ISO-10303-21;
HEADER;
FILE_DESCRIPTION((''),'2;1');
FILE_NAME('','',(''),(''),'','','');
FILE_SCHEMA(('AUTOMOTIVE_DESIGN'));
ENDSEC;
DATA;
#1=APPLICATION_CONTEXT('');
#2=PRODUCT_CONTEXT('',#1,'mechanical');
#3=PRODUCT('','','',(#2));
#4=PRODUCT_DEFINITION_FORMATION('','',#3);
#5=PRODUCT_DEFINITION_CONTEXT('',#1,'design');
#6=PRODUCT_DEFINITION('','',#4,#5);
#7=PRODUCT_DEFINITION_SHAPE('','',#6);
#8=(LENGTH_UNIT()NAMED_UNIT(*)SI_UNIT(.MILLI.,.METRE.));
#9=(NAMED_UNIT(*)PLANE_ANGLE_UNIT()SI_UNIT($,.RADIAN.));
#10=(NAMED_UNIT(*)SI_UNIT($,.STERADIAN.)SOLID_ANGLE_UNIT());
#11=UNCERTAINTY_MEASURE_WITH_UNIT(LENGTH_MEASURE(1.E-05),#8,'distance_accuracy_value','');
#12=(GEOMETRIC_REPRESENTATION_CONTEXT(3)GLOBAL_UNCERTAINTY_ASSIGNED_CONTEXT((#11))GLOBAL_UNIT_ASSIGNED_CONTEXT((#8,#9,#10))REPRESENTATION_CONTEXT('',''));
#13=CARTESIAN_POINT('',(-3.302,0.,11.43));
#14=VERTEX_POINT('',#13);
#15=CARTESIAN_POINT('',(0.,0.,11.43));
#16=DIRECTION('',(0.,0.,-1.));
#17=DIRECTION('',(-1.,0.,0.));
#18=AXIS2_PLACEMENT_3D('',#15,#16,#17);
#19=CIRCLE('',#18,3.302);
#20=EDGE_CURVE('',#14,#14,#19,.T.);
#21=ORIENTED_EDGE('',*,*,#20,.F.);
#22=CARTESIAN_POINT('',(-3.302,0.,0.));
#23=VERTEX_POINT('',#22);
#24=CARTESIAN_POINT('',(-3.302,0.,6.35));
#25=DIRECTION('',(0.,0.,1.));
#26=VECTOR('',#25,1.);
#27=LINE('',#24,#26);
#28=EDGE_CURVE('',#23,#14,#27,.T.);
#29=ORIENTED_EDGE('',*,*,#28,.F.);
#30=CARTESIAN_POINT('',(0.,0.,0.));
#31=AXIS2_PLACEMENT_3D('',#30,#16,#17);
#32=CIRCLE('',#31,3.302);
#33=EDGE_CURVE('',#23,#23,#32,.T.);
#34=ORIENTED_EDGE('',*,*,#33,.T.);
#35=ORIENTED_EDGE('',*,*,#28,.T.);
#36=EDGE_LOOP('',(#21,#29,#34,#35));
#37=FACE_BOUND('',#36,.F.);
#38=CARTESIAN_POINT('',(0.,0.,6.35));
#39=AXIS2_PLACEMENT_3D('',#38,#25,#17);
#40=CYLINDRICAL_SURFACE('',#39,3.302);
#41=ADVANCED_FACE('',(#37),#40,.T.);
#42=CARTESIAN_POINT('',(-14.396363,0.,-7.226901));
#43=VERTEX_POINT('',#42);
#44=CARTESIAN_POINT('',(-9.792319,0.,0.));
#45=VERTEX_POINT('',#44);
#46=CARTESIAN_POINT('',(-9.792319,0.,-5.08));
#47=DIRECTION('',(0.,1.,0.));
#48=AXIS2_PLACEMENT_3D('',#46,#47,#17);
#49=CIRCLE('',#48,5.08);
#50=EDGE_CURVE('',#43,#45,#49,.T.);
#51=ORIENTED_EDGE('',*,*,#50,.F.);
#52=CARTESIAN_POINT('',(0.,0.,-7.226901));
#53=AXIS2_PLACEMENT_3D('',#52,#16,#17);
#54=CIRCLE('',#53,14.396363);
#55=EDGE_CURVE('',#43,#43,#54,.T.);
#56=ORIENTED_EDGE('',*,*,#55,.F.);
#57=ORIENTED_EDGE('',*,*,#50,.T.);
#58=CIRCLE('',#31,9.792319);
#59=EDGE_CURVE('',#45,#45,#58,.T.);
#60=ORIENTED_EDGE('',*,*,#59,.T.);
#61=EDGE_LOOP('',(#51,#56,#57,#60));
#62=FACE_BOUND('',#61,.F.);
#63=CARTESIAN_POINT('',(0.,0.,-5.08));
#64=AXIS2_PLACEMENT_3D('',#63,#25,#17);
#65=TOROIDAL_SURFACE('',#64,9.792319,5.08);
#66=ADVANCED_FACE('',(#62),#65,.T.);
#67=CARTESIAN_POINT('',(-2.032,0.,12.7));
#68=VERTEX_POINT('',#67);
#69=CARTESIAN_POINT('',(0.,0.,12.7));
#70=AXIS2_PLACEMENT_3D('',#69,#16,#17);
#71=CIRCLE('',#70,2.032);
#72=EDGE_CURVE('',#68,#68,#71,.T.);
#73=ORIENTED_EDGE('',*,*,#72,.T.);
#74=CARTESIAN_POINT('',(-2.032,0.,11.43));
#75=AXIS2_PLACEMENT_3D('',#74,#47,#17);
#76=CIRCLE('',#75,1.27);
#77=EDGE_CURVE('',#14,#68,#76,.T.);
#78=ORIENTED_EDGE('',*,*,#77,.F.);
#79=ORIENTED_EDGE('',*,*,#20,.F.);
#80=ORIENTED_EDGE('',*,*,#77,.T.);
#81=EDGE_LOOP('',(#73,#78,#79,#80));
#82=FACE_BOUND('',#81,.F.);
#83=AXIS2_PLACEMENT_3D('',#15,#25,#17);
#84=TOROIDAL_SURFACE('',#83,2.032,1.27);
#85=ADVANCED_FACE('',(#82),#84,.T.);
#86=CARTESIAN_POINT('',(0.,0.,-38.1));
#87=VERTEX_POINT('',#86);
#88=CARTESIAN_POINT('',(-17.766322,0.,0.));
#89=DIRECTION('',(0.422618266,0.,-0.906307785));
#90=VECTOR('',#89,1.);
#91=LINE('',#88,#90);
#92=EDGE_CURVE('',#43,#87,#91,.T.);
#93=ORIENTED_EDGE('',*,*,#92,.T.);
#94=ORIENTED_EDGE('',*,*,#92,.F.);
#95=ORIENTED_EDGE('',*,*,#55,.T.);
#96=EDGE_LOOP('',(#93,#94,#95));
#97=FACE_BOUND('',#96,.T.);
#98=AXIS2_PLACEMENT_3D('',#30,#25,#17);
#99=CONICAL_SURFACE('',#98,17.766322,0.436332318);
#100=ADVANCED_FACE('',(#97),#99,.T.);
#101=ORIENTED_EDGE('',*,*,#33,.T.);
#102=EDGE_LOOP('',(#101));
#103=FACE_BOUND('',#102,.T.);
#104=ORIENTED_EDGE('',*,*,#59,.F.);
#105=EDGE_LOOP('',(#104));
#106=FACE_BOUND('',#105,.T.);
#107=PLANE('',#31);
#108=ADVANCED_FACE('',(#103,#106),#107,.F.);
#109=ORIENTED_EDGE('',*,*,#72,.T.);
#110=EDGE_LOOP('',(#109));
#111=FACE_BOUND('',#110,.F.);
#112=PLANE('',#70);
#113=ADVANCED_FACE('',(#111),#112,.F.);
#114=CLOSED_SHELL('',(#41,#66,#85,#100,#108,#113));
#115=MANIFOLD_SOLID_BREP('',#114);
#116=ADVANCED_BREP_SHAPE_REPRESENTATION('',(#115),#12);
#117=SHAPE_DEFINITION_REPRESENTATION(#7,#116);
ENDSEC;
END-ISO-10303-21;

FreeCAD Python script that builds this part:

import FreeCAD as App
import Part
import Sketcher
from FreeCAD import Vector
Q = App.Units.Quantity


def edges_at(feature, points):
    """Names of the edges that pass closest to the given points."""
    edges = feature.Shape.Edges
    near = lambda p: min(range(len(edges)), key=lambda i: edges[i].distToShape(Part.Vertex(*p))[0])
    return sorted({f"Edge{near(p) + 1}" for p in points})

doc = App.newDocument("Part")
body = doc.addObject("PartDesign::Body", "Body")

sketch1 = body.newObject("Sketcher::SketchObject", "Sketch")
sketch1.AttachmentSupport = (doc.getObject("XZ_Plane"), [""])
sketch1.MapMode = "FlatFace"
sketch1.addGeometry([
    Part.LineSegment(Vector(-17.8, 0, 0), Vector(0, -38.1, 0)),
    Part.LineSegment(Vector(0, -38.1, 0), Vector(0, 12.7, 0)),
    Part.LineSegment(Vector(0, 12.7, 0), Vector(-3.3, 12.7, 0)),
    Part.LineSegment(Vector(-3.3, 12.7, 0), Vector(-3.3, 0, 0)),
    Part.LineSegment(Vector(-3.3, 0, 0), Vector(-17.8, 0, 0)),
], False)
sketch1.addConstraint([
    Sketcher.Constraint("Coincident", 0, 2, 1, 1),
    Sketcher.Constraint("Coincident", 1, 2, 2, 1),
    Sketcher.Constraint("Coincident", 2, 2, 3, 1),
    Sketcher.Constraint("Coincident", 3, 2, 4, 1),
    Sketcher.Constraint("Coincident", 4, 2, 0, 1),
    Sketcher.Constraint("Vertical", 1),
    Sketcher.Constraint("Horizontal", 2),
    Sketcher.Constraint("Vertical", 3),
    Sketcher.Constraint("Horizontal", 4),
    Sketcher.Constraint("PointOnObject", 0, 2, -2),
    Sketcher.Constraint("PointOnObject", 3, 2, -1),
    Sketcher.Constraint("DistanceY", 1, 1, 1, 2, Q("2 in")),
    Sketcher.Constraint("DistanceY", 3, 2, 3, 1, Q("0.5 in")),
    Sketcher.Constraint("Angle", 0, Q("-65 deg")),
    Sketcher.Constraint("DistanceX", 2, 2, 2, 1, Q("0.13 in")),
])
revolution = body.newObject("PartDesign::Revolution", "Revolution")
revolution.Profile = sketch1
revolution.ReferenceAxis = (sketch1, ["V_Axis"])
revolution.Angle = 360
doc.recompute()

fillet = body.newObject("PartDesign::Fillet", "Fillet")
fillet.Base = (revolution, edges_at(revolution, [(17.766, 0, 0)]))
fillet.Radius = Q("0.2 in")
doc.recompute()

fillet2 = body.newObject("PartDesign::Fillet", "Fillet001")
fillet2.Base = (fillet, edges_at(fillet, [(3.302, 0, 12.7)]))
fillet2.Radius = Q("0.05 in")

doc.recompute()
